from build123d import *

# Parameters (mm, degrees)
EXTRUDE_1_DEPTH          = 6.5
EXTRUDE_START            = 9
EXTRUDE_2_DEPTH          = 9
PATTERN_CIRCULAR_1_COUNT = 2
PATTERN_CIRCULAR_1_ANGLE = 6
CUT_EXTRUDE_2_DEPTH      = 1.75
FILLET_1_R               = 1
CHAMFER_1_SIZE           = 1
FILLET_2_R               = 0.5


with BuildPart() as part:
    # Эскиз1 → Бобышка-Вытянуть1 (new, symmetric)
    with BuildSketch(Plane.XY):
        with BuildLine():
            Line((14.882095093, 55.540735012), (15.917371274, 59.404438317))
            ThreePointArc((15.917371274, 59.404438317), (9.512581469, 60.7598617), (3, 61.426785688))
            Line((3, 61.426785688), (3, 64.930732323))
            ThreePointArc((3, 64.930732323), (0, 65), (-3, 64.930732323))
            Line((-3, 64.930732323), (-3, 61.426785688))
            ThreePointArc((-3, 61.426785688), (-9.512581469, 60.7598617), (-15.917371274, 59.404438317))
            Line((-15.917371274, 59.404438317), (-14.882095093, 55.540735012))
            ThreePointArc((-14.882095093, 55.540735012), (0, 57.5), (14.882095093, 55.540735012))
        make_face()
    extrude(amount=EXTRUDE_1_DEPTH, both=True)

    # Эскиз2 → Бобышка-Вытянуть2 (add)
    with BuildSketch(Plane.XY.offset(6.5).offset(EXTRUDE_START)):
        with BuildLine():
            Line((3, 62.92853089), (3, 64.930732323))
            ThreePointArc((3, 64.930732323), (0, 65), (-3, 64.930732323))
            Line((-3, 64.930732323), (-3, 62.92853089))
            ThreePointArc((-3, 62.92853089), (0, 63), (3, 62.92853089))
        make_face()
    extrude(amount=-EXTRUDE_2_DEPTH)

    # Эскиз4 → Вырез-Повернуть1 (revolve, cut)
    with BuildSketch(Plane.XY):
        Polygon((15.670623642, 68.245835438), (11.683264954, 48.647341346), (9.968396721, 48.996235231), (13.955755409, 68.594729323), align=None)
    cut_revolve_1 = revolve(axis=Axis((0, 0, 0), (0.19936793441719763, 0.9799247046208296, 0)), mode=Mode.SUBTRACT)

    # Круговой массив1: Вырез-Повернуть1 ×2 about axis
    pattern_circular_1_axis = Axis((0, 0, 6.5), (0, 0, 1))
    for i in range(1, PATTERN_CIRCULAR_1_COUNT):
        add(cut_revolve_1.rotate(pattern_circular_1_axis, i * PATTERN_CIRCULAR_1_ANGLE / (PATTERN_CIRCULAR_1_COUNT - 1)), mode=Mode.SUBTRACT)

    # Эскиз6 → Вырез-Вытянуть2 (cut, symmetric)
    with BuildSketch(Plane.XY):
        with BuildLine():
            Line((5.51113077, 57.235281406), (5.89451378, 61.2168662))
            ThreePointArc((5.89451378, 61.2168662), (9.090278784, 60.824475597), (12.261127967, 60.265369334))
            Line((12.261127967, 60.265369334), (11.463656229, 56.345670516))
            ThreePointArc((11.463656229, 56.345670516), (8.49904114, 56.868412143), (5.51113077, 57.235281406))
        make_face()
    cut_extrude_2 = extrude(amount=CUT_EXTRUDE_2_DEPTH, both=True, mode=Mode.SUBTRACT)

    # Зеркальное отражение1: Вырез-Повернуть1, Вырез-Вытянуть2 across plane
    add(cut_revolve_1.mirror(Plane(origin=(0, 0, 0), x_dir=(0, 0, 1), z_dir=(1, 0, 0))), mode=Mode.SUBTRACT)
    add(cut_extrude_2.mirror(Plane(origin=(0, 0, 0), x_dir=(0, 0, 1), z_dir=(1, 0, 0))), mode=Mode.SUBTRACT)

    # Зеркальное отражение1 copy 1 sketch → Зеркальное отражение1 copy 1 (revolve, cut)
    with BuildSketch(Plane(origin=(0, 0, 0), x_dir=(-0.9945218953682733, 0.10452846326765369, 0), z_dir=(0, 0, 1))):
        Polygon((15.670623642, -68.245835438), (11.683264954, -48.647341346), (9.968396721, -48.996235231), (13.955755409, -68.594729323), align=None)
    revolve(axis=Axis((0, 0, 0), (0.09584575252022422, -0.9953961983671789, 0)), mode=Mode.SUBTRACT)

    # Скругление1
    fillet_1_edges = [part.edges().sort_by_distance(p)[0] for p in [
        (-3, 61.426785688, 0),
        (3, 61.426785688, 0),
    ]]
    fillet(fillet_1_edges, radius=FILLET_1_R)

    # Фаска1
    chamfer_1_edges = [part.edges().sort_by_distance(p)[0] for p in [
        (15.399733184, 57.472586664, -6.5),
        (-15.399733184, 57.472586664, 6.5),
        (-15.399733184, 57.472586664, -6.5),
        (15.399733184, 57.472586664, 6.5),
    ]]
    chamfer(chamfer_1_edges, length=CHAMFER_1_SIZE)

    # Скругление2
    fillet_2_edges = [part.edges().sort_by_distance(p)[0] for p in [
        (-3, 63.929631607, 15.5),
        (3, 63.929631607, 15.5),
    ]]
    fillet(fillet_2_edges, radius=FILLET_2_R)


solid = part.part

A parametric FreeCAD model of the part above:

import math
import FreeCAD as App
import Part
import Sketcher
from FreeCAD import Vector
Q = App.Units.Quantity


def edges_at(feature, points):
    """Names of the edges that pass closest to the given points."""
    edges = feature.Shape.Edges
    near = lambda p: min(range(len(edges)), key=lambda i: edges[i].distToShape(Part.Vertex(*p))[0])
    return sorted({f"Edge{near(p) + 1}" for p in points})


def add_polygon(sketch, points):
    """Adds a closed chain of lines whose ends are joined by coincident constraints."""
    first, n = sketch.GeometryCount, len(points)
    for a, b in zip(points, points[1:] + points[:1]):
        sketch.addGeometry(Part.LineSegment(App.Vector(*a, 0), App.Vector(*b, 0)), False)
    for i in range(n):
        sketch.addConstraint(Sketcher.Constraint("Coincident", first + i, 2, first + (i + 1) % n, 1))

doc = App.newDocument("Part")
body = doc.addObject("PartDesign::Body", "Body")

# Sketch on XY plane
sketch1 = body.newObject("Sketcher::SketchObject", "Sketch")
sketch1.AttachmentSupport = (doc.getObject("XY_Plane"), [""])
sketch1.MapMode = "FlatFace"
sketch1.addGeometry(Part.LineSegment(Vector(14.9, 55.5, 0), Vector(15.9, 59.4, 0)), False)
sketch1.addGeometry(Part.ArcOfCircle(Part.Circle(Vector(0, 0, 0), Vector(0, 0, 1), 61.5), math.radians(75), math.radians(87.2)), False)
sketch1.addGeometry(Part.LineSegment(Vector(3, 61.4, 0), Vector(3, 64.9, 0)), False)
sketch1.addGeometry(Part.ArcOfCircle(Part.Circle(Vector(0, 0, 0), Vector(0, 0, 1), 65), math.radians(87.35), math.radians(92.65)), False)
sketch1.addGeometry(Part.LineSegment(Vector(-3, 64.9, 0), Vector(-3, 61.4, 0)), False)
sketch1.addGeometry(Part.ArcOfCircle(Part.Circle(Vector(0, 0, 0), Vector(0, 0, 1), 61.5), math.radians(92.8), math.radians(105)), False)
sketch1.addGeometry(Part.LineSegment(Vector(-15.9, 59.4, 0), Vector(-14.9, 55.5, 0)), False)
sketch1.addGeometry(Part.ArcOfCircle(Part.Circle(Vector(0, 0, 0), Vector(0, 0, 1), 57.5), math.radians(75), math.radians(105)), False)
sketch1.addConstraint(Sketcher.Constraint("Coincident", 0, 2, 1, 1))
sketch1.addConstraint(Sketcher.Constraint("Coincident", 1, 2, 2, 1))
sketch1.addConstraint(Sketcher.Constraint("Coincident", 2, 2, 3, 1))
sketch1.addConstraint(Sketcher.Constraint("Coincident", 3, 2, 4, 1))
sketch1.addConstraint(Sketcher.Constraint("Coincident", 4, 2, 5, 1))
sketch1.addConstraint(Sketcher.Constraint("Coincident", 5, 2, 6, 1))
sketch1.addConstraint(Sketcher.Constraint("Coincident", 6, 2, 7, 2))
sketch1.addConstraint(Sketcher.Constraint("Coincident", 7, 1, 0, 1))
sketch1.addConstraint(Sketcher.Constraint("Vertical", 2))
sketch1.addConstraint(Sketcher.Constraint("Vertical", 4))
sketch1.addConstraint(Sketcher.Constraint("Coincident", 1, 3, -1, 1))
sketch1.addConstraint(Sketcher.Constraint("Coincident", 3, 3, -1, 1))
sketch1.addConstraint(Sketcher.Constraint("Coincident", 5, 3, -1, 1))
sketch1.addConstraint(Sketcher.Constraint("Coincident", 7, 3, -1, 1))
sketch1.addConstraint(Sketcher.Constraint("Equal", 1, 5))
sketch1.addConstraint(Sketcher.Constraint("Horizontal", 2, 2, 3, 2))
sketch1.addConstraint(Sketcher.Constraint("Horizontal", 0, 2, 5, 2))
sketch1.addConstraint(Sketcher.Constraint("Horizontal", 6, 2, 7, 1))
sketch1.addConstraint(Sketcher.Constraint("Radius", 3, Q("65 mm")))
sketch1.addConstraint(Sketcher.Constraint("Radius", 1, Q("61.5 mm")))
sketch1.addConstraint(Sketcher.Constraint("Radius", 7, Q("57.5 mm")))
sketch1.addConstraint(Sketcher.Constraint("Angle", 0, Q("75 deg")))
sketch1.addConstraint(Sketcher.Constraint("DistanceX", -1, 1, 1, 2, Q("3 mm")))
sketch1.addConstraint(Sketcher.Constraint("DistanceX", -1, 1, 0, 2, Q("15.917371 mm")))
pad1 = body.newObject("PartDesign::Pad", "Pad")
pad1.Profile = sketch1
pad1.Length = 13
pad1.Midplane = True

# Sketch on XY plane
sketch2 = body.newObject("Sketcher::SketchObject", "Sketch001")
sketch2.AttachmentSupport = (doc.getObject("XY_Plane"), [""])
sketch2.MapMode = "FlatFace"
sketch2.AttachmentOffset = App.Placement(Vector(0, 0, 15.5), App.Rotation())
sketch2.addGeometry(Part.LineSegment(Vector(3, 62.9, 0), Vector(3, 64.9, 0)), False)
sketch2.addGeometry(Part.ArcOfCircle(Part.Circle(Vector(0, 0, 0), Vector(0, 0, 1), 65), math.radians(87.35), math.radians(92.65)), False)
sketch2.addGeometry(Part.LineSegment(Vector(-3, 64.9, 0), Vector(-3, 62.9, 0)), False)
sketch2.addGeometry(Part.ArcOfCircle(Part.Circle(Vector(0, 0, 0), Vector(0, 0, 1), 63), math.radians(87.27), math.radians(92.73)), False)
sketch2.addConstraint(Sketcher.Constraint("Coincident", 0, 2, 1, 1))
sketch2.addConstraint(Sketcher.Constraint("Coincident", 1, 2, 2, 1))
sketch2.addConstraint(Sketcher.Constraint("Coincident", 2, 2, 3, 2))
sketch2.addConstraint(Sketcher.Constraint("Coincident", 3, 1, 0, 1))
sketch2.addConstraint(Sketcher.Constraint("Vertical", 0))
sketch2.addConstraint(Sketcher.Constraint("Vertical", 2))
sketch2.addConstraint(Sketcher.Constraint("Coincident", 1, 3, -1, 1))
sketch2.addConstraint(Sketcher.Constraint("Coincident", 3, 3, -1, 1))
sketch2.addConstraint(Sketcher.Constraint("Horizontal", 0, 2, 1, 2))
sketch2.addConstraint(Sketcher.Constraint("Radius", 1, Q("65 mm")))
sketch2.addConstraint(Sketcher.Constraint("Radius", 3, Q("63 mm")))
sketch2.addConstraint(Sketcher.Constraint("DistanceX", -1, 1, 0, 2, Q("3 mm")))
pad2 = body.newObject("PartDesign::Pad", "Pad001")
pad2.Profile = sketch2
pad2.Length = 9
pad2.Reversed = True

# Sketch on XY plane
sketch3 = body.newObject("Sketcher::SketchObject", "Sketch002")
sketch3.AttachmentSupport = (doc.getObject("XY_Plane"), [""])
sketch3.MapMode = "FlatFace"
add_polygon(sketch3, [(11.7, 48.6), (15.7, 68.2), (14, 68.6), (10, 49)])  # lines 0-3
sketch3.addGeometry(Part.LineSegment(Vector(10, 49, 0), Vector(14, 68.6, 0)), True)  # axis
sketch3.addConstraint(Sketcher.Constraint("Coincident", 4, 1, 2, 2))
sketch3.addConstraint(Sketcher.Constraint("Coincident", 4, 2, 1, 2))
sketch3.addConstraint(Sketcher.Constraint("Perpendicular", 0, 1))
sketch3.addConstraint(Sketcher.Constraint("Perpendicular", 1, 2))
sketch3.addConstraint(Sketcher.Constraint("Perpendicular", 2, 3))
sketch3.addConstraint(Sketcher.Constraint("Distance", 0, Q("20 mm")))
sketch3.addConstraint(Sketcher.Constraint("Angle", 0, Q("78.5 deg")))
sketch3.addConstraint(Sketcher.Constraint("Distance", 1, Q("1.75 mm")))
sketch3.addConstraint(Sketcher.Constraint("DistanceY", -1, 1, 1, 2, Q("68.594729 mm")))
sketch3.addConstraint(Sketcher.Constraint("DistanceX", -1, 1, 0, 2, Q("15.670624 mm")))
groove = body.newObject("PartDesign::Groove", "Groove")
groove.Profile = sketch3
groove.ReferenceAxis = (sketch3, ["Axis0"])
groove.Angle = 360
doc.recompute()

polarpattern = body.newObject("PartDesign::PolarPattern", "PolarPattern")
polarpattern.Originals = [groove]
polarpattern.Axis = (doc.getObject("Z_Axis"), [""])
polarpattern.Angle = 6
polarpattern.Occurrences = 2
body.Tip = polarpattern

# Sketch on XY plane
sketch4 = body.newObject("Sketcher::SketchObject", "Sketch003")
sketch4.AttachmentSupport = (doc.getObject("XY_Plane"), [""])
sketch4.MapMode = "FlatFace"
sketch4.addGeometry(Part.LineSegment(Vector(5.9, 61.2, 0), Vector(5.5, 57.2, 0)), False)
sketch4.addGeometry(Part.ArcOfCircle(Part.Circle(Vector(0, 0, 0), Vector(0, 0, 1), 57.5), math.radians(78.5), math.radians(84.5)), False)
sketch4.addGeometry(Part.LineSegment(Vector(11.5, 56.3, 0), Vector(12.3, 60.3, 0)), False)
sketch4.addGeometry(Part.ArcOfCircle(Part.Circle(Vector(0, 0, 0), Vector(0, 0, 1), 61.5), math.radians(78.5), math.radians(84.5)), False)
sketch4.addConstraint(Sketcher.Constraint("Coincident", 0, 2, 1, 2))
sketch4.addConstraint(Sketcher.Constraint("Coincident", 1, 1, 2, 1))
sketch4.addConstraint(Sketcher.Constraint("Coincident", 2, 2, 3, 1))
sketch4.addConstraint(Sketcher.Constraint("Coincident", 3, 2, 0, 1))
sketch4.addConstraint(Sketcher.Constraint("Coincident", 1, 3, -1, 1))
sketch4.addConstraint(Sketcher.Constraint("Coincident", 3, 3, -1, 1))
sketch4.addConstraint(Sketcher.Constraint("Radius", 1, Q("57.5 mm")))
sketch4.addConstraint(Sketcher.Constraint("Radius", 3, Q("61.5 mm")))
sketch4.addConstraint(Sketcher.Constraint("Angle", 0, Q("-95.5 deg")))
sketch4.addConstraint(Sketcher.Constraint("Angle", 2, Q("78.5 deg")))
sketch4.addConstraint(Sketcher.Constraint("DistanceX", -1, 1, 0, 2, Q("5.511131 mm")))
sketch4.addConstraint(Sketcher.Constraint("DistanceY", -1, 1, 1, 1, Q("56.345671 mm")))
pocket1 = body.newObject("PartDesign::Pocket", "Pocket")
pocket1.Profile = sketch4
pocket1.Length = 3.5
pocket1.Midplane = True
doc.recompute()

mirrored = body.newObject("PartDesign::Mirrored", "Mirrored")
mirrored.Originals = [groove, pocket1]
mirrored.MirrorPlane = (doc.getObject("YZ_Plane"), [""])
body.Tip = mirrored

# Sketch on XY plane
sketch5 = body.newObject("Sketcher::SketchObject", "Sketch004")
sketch5.AttachmentSupport = (doc.getObject("XY_Plane"), [""])
sketch5.MapMode = "FlatFace"
add_polygon(sketch5, [(-8.5, 69.5), (-6.5, 49.6), (-4.8, 49.8), (-6.7, 69.7)])  # lines 0-3
sketch5.addGeometry(Part.LineSegment(Vector(-6.7, 69.7, 0), Vector(-4.8, 49.8, 0)), True)  # axis
sketch5.addConstraint(Sketcher.Constraint("Coincident", 4, 1, 2, 2))
sketch5.addConstraint(Sketcher.Constraint("Coincident", 4, 2, 1, 2))
sketch5.addConstraint(Sketcher.Constraint("Perpendicular", 0, 1))
sketch5.addConstraint(Sketcher.Constraint("Perpendicular", 1, 2))
sketch5.addConstraint(Sketcher.Constraint("Perpendicular", 2, 3))
sketch5.addConstraint(Sketcher.Constraint("Distance", 0, Q("20 mm")))
sketch5.addConstraint(Sketcher.Constraint("Angle", 0, Q("-84.5 deg")))
sketch5.addConstraint(Sketcher.Constraint("Distance", 1, Q("1.75 mm")))
sketch5.addConstraint(Sketcher.Constraint("DistanceX", 0, 2, -1, 1, Q("6.534231 mm")))
sketch5.addConstraint(Sketcher.Constraint("DistanceY", -1, 1, 0, 2, Q("49.60208 mm")))
groove2 = body.newObject("PartDesign::Groove", "Groove001")
groove2.Profile = sketch5
groove2.ReferenceAxis = (sketch5, ["Axis0"])
groove2.Angle = 360
doc.recompute()

fillet = body.newObject("PartDesign::Fillet", "Fillet")
fillet.Base = (groove2, edges_at(groove2, [(-3, 61.427, 0), (3, 61.427, 0)]))
fillet.Radius = 1
doc.recompute()

chamfer = body.newObject("PartDesign::Chamfer", "Chamfer")
chamfer.Base = (fillet, edges_at(fillet, [
    (15.4, 57.473, -6.5),
    (-15.4, 57.473, 6.5),
    (-15.4, 57.473, -6.5),
    (15.4, 57.473, 6.5),
]))
chamfer.Size = 1
doc.recompute()

fillet2 = body.newObject("PartDesign::Fillet", "Fillet001")
fillet2.Base = (chamfer, edges_at(chamfer, [(-3, 63.93, 15.5), (3, 63.93, 15.5)]))
fillet2.Radius = 0.5

doc.recompute()
